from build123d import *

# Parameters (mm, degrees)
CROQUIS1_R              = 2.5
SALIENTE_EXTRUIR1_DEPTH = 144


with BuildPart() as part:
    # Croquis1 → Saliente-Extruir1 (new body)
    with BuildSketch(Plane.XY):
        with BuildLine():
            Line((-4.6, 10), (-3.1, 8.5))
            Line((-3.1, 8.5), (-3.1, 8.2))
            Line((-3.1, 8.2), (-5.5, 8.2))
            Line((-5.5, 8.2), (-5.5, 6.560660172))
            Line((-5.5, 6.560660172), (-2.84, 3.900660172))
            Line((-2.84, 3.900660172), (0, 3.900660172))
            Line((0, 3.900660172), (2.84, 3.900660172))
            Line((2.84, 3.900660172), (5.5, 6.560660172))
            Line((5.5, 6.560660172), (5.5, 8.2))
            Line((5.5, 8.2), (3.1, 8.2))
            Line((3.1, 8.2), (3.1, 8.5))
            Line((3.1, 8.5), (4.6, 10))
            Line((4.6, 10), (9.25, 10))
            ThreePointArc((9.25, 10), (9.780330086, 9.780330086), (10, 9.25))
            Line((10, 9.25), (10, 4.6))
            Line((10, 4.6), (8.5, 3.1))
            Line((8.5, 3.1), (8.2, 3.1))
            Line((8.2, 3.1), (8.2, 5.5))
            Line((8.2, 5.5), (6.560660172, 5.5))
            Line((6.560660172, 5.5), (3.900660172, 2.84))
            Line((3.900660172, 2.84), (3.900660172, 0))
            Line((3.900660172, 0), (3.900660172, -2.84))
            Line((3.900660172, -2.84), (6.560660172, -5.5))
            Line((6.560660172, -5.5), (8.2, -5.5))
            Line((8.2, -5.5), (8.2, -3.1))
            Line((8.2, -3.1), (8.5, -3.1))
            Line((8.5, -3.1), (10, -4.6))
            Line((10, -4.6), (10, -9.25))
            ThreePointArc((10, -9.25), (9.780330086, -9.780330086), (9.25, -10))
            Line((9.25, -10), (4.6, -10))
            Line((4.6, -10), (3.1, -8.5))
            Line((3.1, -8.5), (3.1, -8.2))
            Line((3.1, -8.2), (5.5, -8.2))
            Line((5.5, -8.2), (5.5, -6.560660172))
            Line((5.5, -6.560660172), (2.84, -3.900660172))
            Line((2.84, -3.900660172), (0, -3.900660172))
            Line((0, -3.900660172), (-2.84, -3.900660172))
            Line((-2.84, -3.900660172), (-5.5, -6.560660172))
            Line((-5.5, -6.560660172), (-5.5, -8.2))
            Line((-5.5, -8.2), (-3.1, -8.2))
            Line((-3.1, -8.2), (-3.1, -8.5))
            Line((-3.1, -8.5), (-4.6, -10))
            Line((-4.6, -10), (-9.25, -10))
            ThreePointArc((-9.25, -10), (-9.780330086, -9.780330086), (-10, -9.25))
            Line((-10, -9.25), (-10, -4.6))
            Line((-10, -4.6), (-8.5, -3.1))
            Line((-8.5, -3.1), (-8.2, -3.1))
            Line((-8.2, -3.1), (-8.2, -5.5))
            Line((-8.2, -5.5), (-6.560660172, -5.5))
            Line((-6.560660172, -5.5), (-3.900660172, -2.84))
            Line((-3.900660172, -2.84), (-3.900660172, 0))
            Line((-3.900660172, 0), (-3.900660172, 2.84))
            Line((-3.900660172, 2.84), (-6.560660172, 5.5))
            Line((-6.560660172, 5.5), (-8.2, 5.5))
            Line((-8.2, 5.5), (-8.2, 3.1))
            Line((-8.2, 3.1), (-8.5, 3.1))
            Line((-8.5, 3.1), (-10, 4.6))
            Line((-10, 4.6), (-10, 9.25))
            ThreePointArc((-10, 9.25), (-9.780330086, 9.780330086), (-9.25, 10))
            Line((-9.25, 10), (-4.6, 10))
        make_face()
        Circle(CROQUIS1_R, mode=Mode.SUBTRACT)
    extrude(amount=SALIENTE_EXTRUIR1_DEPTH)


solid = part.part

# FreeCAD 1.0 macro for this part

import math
import FreeCAD as App
import Part
import Sketcher

doc = App.newDocument("Part")
body = doc.addObject("PartDesign::Body", "Body")

# Sketch on XY plane
sketch1 = body.newObject("Sketcher::SketchObject", "Sketch")
sketch1.AttachmentSupport = (doc.getObject("XY_Plane"), [""])
sketch1.MapMode = "FlatFace"
sketch1.addGeometry([
    Part.LineSegment(App.Vector(-3.1, 8.5, 0), App.Vector(-4.6, 10, 0)),  # 0
    Part.LineSegment(App.Vector(-4.6, 10, 0), App.Vector(-9.25, 10, 0)),  # 1
    Part.ArcOfCircle(Part.Circle(App.Vector(-9.25, 9.25, 0), App.Vector(0, 0, 1), 0.75), math.radians(90), math.radians(180)),  # 2
    Part.LineSegment(App.Vector(-10, 9.25, 0), App.Vector(-10, 4.6, 0)),  # 3
    Part.LineSegment(App.Vector(-10, 4.6, 0), App.Vector(-8.5, 3.1, 0)),  # 4
    Part.LineSegment(App.Vector(-8.5, 3.1, 0), App.Vector(-8.2, 3.1, 0)),  # 5
    Part.LineSegment(App.Vector(-8.2, 3.1, 0), App.Vector(-8.2, 5.5, 0)),  # 6
    Part.LineSegment(App.Vector(-8.2, 5.5, 0), App.Vector(-6.56, 5.5, 0)),  # 7
    Part.LineSegment(App.Vector(-6.56, 5.5, 0), App.Vector(-3.9, 2.84, 0)),  # 8
    Part.LineSegment(App.Vector(-3.9, 2.84, 0), App.Vector(-3.9, -2.84, 0)),  # 9
    Part.LineSegment(App.Vector(-3.9, -2.84, 0), App.Vector(-6.56, -5.5, 0)),  # 10
    Part.LineSegment(App.Vector(-6.56, -5.5, 0), App.Vector(-8.2, -5.5, 0)),  # 11
    Part.LineSegment(App.Vector(-8.2, -5.5, 0), App.Vector(-8.2, -3.1, 0)),  # 12
    Part.LineSegment(App.Vector(-8.2, -3.1, 0), App.Vector(-8.5, -3.1, 0)),  # 13
    Part.LineSegment(App.Vector(-8.5, -3.1, 0), App.Vector(-10, -4.6, 0)),  # 14
    Part.LineSegment(App.Vector(-10, -4.6, 0), App.Vector(-10, -9.25, 0)),  # 15
    Part.ArcOfCircle(Part.Circle(App.Vector(-9.25, -9.25, 0), App.Vector(0, 0, 1), 0.75), math.radians(180), math.radians(270)),  # 16
    Part.LineSegment(App.Vector(-9.25, -10, 0), App.Vector(-4.6, -10, 0)),  # 17
    Part.LineSegment(App.Vector(-4.6, -10, 0), App.Vector(-3.1, -8.5, 0)),  # 18
    Part.LineSegment(App.Vector(-3.1, -8.5, 0), App.Vector(-3.1, -8.2, 0)),  # 19
    Part.LineSegment(App.Vector(-3.1, -8.2, 0), App.Vector(-5.5, -8.2, 0)),  # 20
    Part.LineSegment(App.Vector(-5.5, -8.2, 0), App.Vector(-5.5, -6.56, 0)),  # 21
    Part.LineSegment(App.Vector(-5.5, -6.56, 0), App.Vector(-2.84, -3.9, 0)),  # 22
    Part.LineSegment(App.Vector(-2.84, -3.9, 0), App.Vector(2.84, -3.9, 0)),  # 23
    Part.LineSegment(App.Vector(2.84, -3.9, 0), App.Vector(5.5, -6.56, 0)),  # 24
    Part.LineSegment(App.Vector(5.5, -6.56, 0), App.Vector(5.5, -8.2, 0)),  # 25
    Part.LineSegment(App.Vector(5.5, -8.2, 0), App.Vector(3.1, -8.2, 0)),  # 26
    Part.LineSegment(App.Vector(3.1, -8.2, 0), App.Vector(3.1, -8.5, 0)),  # 27
    Part.LineSegment(App.Vector(3.1, -8.5, 0), App.Vector(4.6, -10, 0)),  # 28
    Part.LineSegment(App.Vector(4.6, -10, 0), App.Vector(9.25, -10, 0)),  # 29
    Part.ArcOfCircle(Part.Circle(App.Vector(9.25, -9.25, 0), App.Vector(0, 0, 1), 0.75), math.radians(-90), math.radians(0)),  # 30
    Part.LineSegment(App.Vector(10, -9.25, 0), App.Vector(10, -4.6, 0)),  # 31
    Part.LineSegment(App.Vector(10, -4.6, 0), App.Vector(8.5, -3.1, 0)),  # 32
    Part.LineSegment(App.Vector(8.5, -3.1, 0), App.Vector(8.2, -3.1, 0)),  # 33
    Part.LineSegment(App.Vector(8.2, -3.1, 0), App.Vector(8.2, -5.5, 0)),  # 34
    Part.LineSegment(App.Vector(8.2, -5.5, 0), App.Vector(6.56, -5.5, 0)),  # 35
    Part.LineSegment(App.Vector(6.56, -5.5, 0), App.Vector(3.9, -2.84, 0)),  # 36
    Part.LineSegment(App.Vector(3.9, -2.84, 0), App.Vector(3.9, 2.84, 0)),  # 37
    Part.LineSegment(App.Vector(3.9, 2.84, 0), App.Vector(6.56, 5.5, 0)),  # 38
    Part.LineSegment(App.Vector(6.56, 5.5, 0), App.Vector(8.2, 5.5, 0)),  # 39
    Part.LineSegment(App.Vector(8.2, 5.5, 0), App.Vector(8.2, 3.1, 0)),  # 40
    Part.LineSegment(App.Vector(8.2, 3.1, 0), App.Vector(8.5, 3.1, 0)),  # 41
    Part.LineSegment(App.Vector(8.5, 3.1, 0), App.Vector(10, 4.6, 0)),  # 42
    Part.LineSegment(App.Vector(10, 4.6, 0), App.Vector(10, 9.25, 0)),  # 43
    Part.ArcOfCircle(Part.Circle(App.Vector(9.25, 9.25, 0), App.Vector(0, 0, 1), 0.75), math.radians(0), math.radians(90)),  # 44
    Part.LineSegment(App.Vector(9.25, 10, 0), App.Vector(4.6, 10, 0)),  # 45
    Part.LineSegment(App.Vector(4.6, 10, 0), App.Vector(3.1, 8.5, 0)),  # 46
    Part.LineSegment(App.Vector(3.1, 8.5, 0), App.Vector(3.1, 8.2, 0)),  # 47
    Part.LineSegment(App.Vector(3.1, 8.2, 0), App.Vector(5.5, 8.2, 0)),  # 48
    Part.LineSegment(App.Vector(5.5, 8.2, 0), App.Vector(5.5, 6.56, 0)),  # 49
    Part.LineSegment(App.Vector(5.5, 6.56, 0), App.Vector(2.84, 3.9, 0)),  # 50
    Part.LineSegment(App.Vector(2.84, 3.9, 0), App.Vector(-2.84, 3.9, 0)),  # 51
    Part.LineSegment(App.Vector(-2.84, 3.9, 0), App.Vector(-5.5, 6.56, 0)),  # 52
    Part.LineSegment(App.Vector(-5.5, 6.56, 0), App.Vector(-5.5, 8.2, 0)),  # 53
    Part.LineSegment(App.Vector(-5.5, 8.2, 0), App.Vector(-3.1, 8.2, 0)),  # 54
    Part.LineSegment(App.Vector(-3.1, 8.2, 0), App.Vector(-3.1, 8.5, 0)),  # 55
    Part.Circle(App.Vector(0, 0, 0), App.Vector(0, 0, 1), 2.5),  # 56
], False)
sketch1.addConstraint([
    Sketcher.Constraint("Coincident", 0, 2, 1, 1),
    Sketcher.Constraint("Tangent", 1, 2, 2, 1),
    Sketcher.Constraint("Tangent", 2, 2, 3, 1),
    Sketcher.Constraint("Coincident", 3, 2, 4, 1),
    Sketcher.Constraint("Coincident", 4, 2, 5, 1),
    Sketcher.Constraint("Coincident", 5, 2, 6, 1),
    Sketcher.Constraint("Coincident", 6, 2, 7, 1),
    Sketcher.Constraint("Coincident", 7, 2, 8, 1),
    Sketcher.Constraint("Coincident", 8, 2, 9, 1),
    Sketcher.Constraint("Coincident", 9, 2, 10, 1),
    Sketcher.Constraint("Coincident", 10, 2, 11, 1),
    Sketcher.Constraint("Coincident", 11, 2, 12, 1),
    Sketcher.Constraint("Coincident", 12, 2, 13, 1),
    Sketcher.Constraint("Coincident", 13, 2, 14, 1),
    Sketcher.Constraint("Coincident", 14, 2, 15, 1),
    Sketcher.Constraint("Tangent", 15, 2, 16, 1),
    Sketcher.Constraint("Tangent", 16, 2, 17, 1),
    Sketcher.Constraint("Coincident", 17, 2, 18, 1),
    Sketcher.Constraint("Coincident", 18, 2, 19, 1),
    Sketcher.Constraint("Coincident", 19, 2, 20, 1),
    Sketcher.Constraint("Coincident", 20, 2, 21, 1),
    Sketcher.Constraint("Coincident", 21, 2, 22, 1),
    Sketcher.Constraint("Coincident", 22, 2, 23, 1),
    Sketcher.Constraint("Coincident", 23, 2, 24, 1),
    Sketcher.Constraint("Coincident", 24, 2, 25, 1),
    Sketcher.Constraint("Coincident", 25, 2, 26, 1),
    Sketcher.Constraint("Coincident", 26, 2, 27, 1),
    Sketcher.Constraint("Coincident", 27, 2, 28, 1),
    Sketcher.Constraint("Coincident", 28, 2, 29, 1),
    Sketcher.Constraint("Tangent", 29, 2, 30, 1),
    Sketcher.Constraint("Tangent", 30, 2, 31, 1),
    Sketcher.Constraint("Coincident", 31, 2, 32, 1),
    Sketcher.Constraint("Coincident", 32, 2, 33, 1),
    Sketcher.Constraint("Coincident", 33, 2, 34, 1),
    Sketcher.Constraint("Coincident", 34, 2, 35, 1),
    Sketcher.Constraint("Coincident", 35, 2, 36, 1),
    Sketcher.Constraint("Coincident", 36, 2, 37, 1),
    Sketcher.Constraint("Coincident", 37, 2, 38, 1),
    Sketcher.Constraint("Coincident", 38, 2, 39, 1),
    Sketcher.Constraint("Coincident", 39, 2, 40, 1),
    Sketcher.Constraint("Coincident", 40, 2, 41, 1),
    Sketcher.Constraint("Coincident", 41, 2, 42, 1),
    Sketcher.Constraint("Coincident", 42, 2, 43, 1),
    Sketcher.Constraint("Tangent", 43, 2, 44, 1),
    Sketcher.Constraint("Tangent", 44, 2, 45, 1),
    Sketcher.Constraint("Coincident", 45, 2, 46, 1),
    Sketcher.Constraint("Coincident", 46, 2, 47, 1),
    Sketcher.Constraint("Coincident", 47, 2, 48, 1),
    Sketcher.Constraint("Coincident", 48, 2, 49, 1),
    Sketcher.Constraint("Coincident", 49, 2, 50, 1),
    Sketcher.Constraint("Coincident", 50, 2, 51, 1),
    Sketcher.Constraint("Coincident", 51, 2, 52, 1),
    Sketcher.Constraint("Coincident", 52, 2, 53, 1),
    Sketcher.Constraint("Coincident", 53, 2, 54, 1),
    Sketcher.Constraint("Coincident", 54, 2, 55, 1),
    Sketcher.Constraint("Coincident", 55, 2, 0, 1),
    Sketcher.Constraint("Horizontal", 1),
    Sketcher.Constraint("Vertical", 3),
    Sketcher.Constraint("Horizontal", 5),
    Sketcher.Constraint("Vertical", 6),
    Sketcher.Constraint("Horizontal", 7),
    Sketcher.Constraint("Vertical", 9),
    Sketcher.Constraint("Horizontal", 11),
    Sketcher.Constraint("Vertical", 12),
    Sketcher.Constraint("Horizontal", 13),
    Sketcher.Constraint("Vertical", 15),
    Sketcher.Constraint("Horizontal", 17),
    Sketcher.Constraint("Vertical", 19),
    Sketcher.Constraint("Horizontal", 20),
    Sketcher.Constraint("Vertical", 21),
    Sketcher.Constraint("Horizontal", 23),
    Sketcher.Constraint("Vertical", 25),
    Sketcher.Constraint("Horizontal", 26),
    Sketcher.Constraint("Vertical", 27),
    Sketcher.Constraint("Horizontal", 29),
    Sketcher.Constraint("Vertical", 31),
    Sketcher.Constraint("Horizontal", 33),
    Sketcher.Constraint("Vertical", 34),
    Sketcher.Constraint("Horizontal", 35),
    Sketcher.Constraint("Vertical", 37),
    Sketcher.Constraint("Horizontal", 39),
    Sketcher.Constraint("Vertical", 40),
    Sketcher.Constraint("Horizontal", 41),
    Sketcher.Constraint("Vertical", 43),
    Sketcher.Constraint("Horizontal", 45),
    Sketcher.Constraint("Vertical", 47),
    Sketcher.Constraint("Horizontal", 48),
    Sketcher.Constraint("Vertical", 49),
    Sketcher.Constraint("Horizontal", 51),
    Sketcher.Constraint("Vertical", 53),
    Sketcher.Constraint("Horizontal", 54),
    Sketcher.Constraint("Vertical", 55),
    Sketcher.Constraint("Coincident", 56, 3, -1, 1),
    Sketcher.Constraint("Equal", 2, 16),
    Sketcher.Constraint("Equal", 16, 30),
    Sketcher.Constraint("Equal", 30, 44),
    Sketcher.Constraint("Symmetric", 2, 3, 30, 3, -1, 1),
    Sketcher.Constraint("Symmetric", 16, 3, 44, 3, -1, 1),
    Sketcher.Constraint("Symmetric", 4, 2, 32, 2, -1, 1),
    Sketcher.Constraint("Symmetric", 6, 2, 34, 2, -1, 1),
    Sketcher.Constraint("Symmetric", 8, 2, 36, 2, -1, 1),
    Sketcher.Constraint("Symmetric", 10, 2, 38, 2, -1, 1),
    Sketcher.Constraint("Symmetric", 12, 2, 40, 2, -1, 1),
    Sketcher.Constraint("Symmetric", 18, 2, 46, 2, -1, 1),
    Sketcher.Constraint("Symmetric", 20, 2, 48, 2, -1, 1),
    Sketcher.Constraint("Symmetric", 22, 2, 50, 2, -1, 1),
    Sketcher.Constraint("Symmetric", 24, 2, 52, 2, -1, 1),
    Sketcher.Constraint("Symmetric", 26, 2, 54, 2, -1, 1),
    Sketcher.Constraint("Symmetric", 16, 3, 30, 3, -2),
    Sketcher.Constraint("Symmetric", 21, 2, 24, 2, -2),
    Sketcher.Constraint("Symmetric", 19, 2, 26, 2, -2),
    Sketcher.Constraint("Symmetric", 13, 2, 32, 2, -2),
    Sketcher.Constraint("Symmetric", 11, 2, 34, 2, -2),
    Sketcher.Constraint("Parallel", 0, 4),
    Sketcher.Constraint("Parallel", 4, 8),
    Sketcher.Constraint("Perpendicular", 8, 10),
    Sketcher.Constraint("Parallel", 10, 14),
    Sketcher.Constraint("Parallel", 14, 18),
    Sketcher.Constraint("Parallel", 18, 22),
    Sketcher.Constraint("Perpendicular", 22, 24),
    Sketcher.Constraint("Parallel", 24, 28),
    Sketcher.Constraint("Parallel", 28, 32),
    Sketcher.Constraint("Parallel", 32, 36),
    Sketcher.Constraint("Perpendicular", 36, 38),
    Sketcher.Constraint("Parallel", 38, 42),
    Sketcher.Constraint("Parallel", 42, 46),
    Sketcher.Constraint("Parallel", 46, 50),
    Sketcher.Constraint("Perpendicular", 50, 52),
    Sketcher.Constraint("Horizontal", 18, 2, 27, 2),
    Sketcher.Constraint("Horizontal", 14, 2, 31, 2),
    Sketcher.Constraint("Horizontal", 9, 2, 36, 2),
    Sketcher.Constraint("Horizontal", 3, 2, 42, 2),
    Sketcher.Constraint("Horizontal", 46, 2, 55, 2),
    Sketcher.Constraint("Equal", 45, 3),
    Sketcher.Constraint("Equal", 54, 6),
    Sketcher.Constraint("Equal", 51, 9),
    Sketcher.Constraint("Equal", 41, 19),
    Sketcher.Constraint("Equal", 39, 21),
    Sketcher.Constraint("Equal", 0, 4),
    Sketcher.Constraint("Equal", 10, 22),
    Sketcher.Constraint("Diameter", 56, 5.0),
    Sketcher.Constraint("Radius", 2, 0.75),
    Sketcher.Constraint("DistanceX", 5, 1, 5, 2, 0.3),
    Sketcher.Constraint("DistanceX", 20, 2, 20, 1, 2.4),
    Sketcher.Constraint("DistanceY", -1, 1, 0, 2, 10.0),
    Sketcher.Constraint("DistanceX", 1, 2, 1, 1, 4.65),
    Sketcher.Constraint("DistanceX", 23, 1, 23, 2, 5.68),
    Sketcher.Constraint("DistanceX", 4, 2, -1, 1, 8.5),
    Sketcher.Constraint("DistanceX", 7, 1, 7, 2, 1.63934),
])
pad1 = body.newObject("PartDesign::Pad", "Pad")
pad1.Profile = sketch1
pad1.Length = 144

doc.recompute()
